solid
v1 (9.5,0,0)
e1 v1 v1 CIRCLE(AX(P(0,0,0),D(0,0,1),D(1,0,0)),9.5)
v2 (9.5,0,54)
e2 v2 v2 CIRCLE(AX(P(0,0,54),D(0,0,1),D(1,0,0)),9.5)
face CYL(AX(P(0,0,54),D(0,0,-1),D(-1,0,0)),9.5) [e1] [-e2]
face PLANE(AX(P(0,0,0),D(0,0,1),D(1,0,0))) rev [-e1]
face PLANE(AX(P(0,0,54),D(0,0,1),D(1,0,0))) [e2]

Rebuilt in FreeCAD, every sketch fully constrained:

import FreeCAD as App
import Part
import Sketcher

doc = App.newDocument("Part")
params = doc.addObject("Spreadsheet::Sheet", "Params")
for row, (alias, value) in enumerate([
    ("sketch1_diameter", "19 mm"),
    ("pad1_length", "54 mm"),
], start=1):
    params.set(f"A{row}", alias)
    params.set(f"B{row}", "=" + value)
    params.setAlias(f"B{row}", alias)

body = doc.addObject("PartDesign::Body", "Body")

# Sketch on XY plane
sketch1 = body.newObject("Sketcher::SketchObject", "Sketch")
sketch1.AttachmentSupport = (doc.getObject("XY_Plane"), [""])
sketch1.MapMode = "FlatFace"
sketch1.addGeometry(Part.Circle(App.Vector(0, 0, 0), App.Vector(0, 0, 1), 10), False)
sketch1.addConstraint(Sketcher.Constraint("Coincident", 0, 3, -1, 1))
sketch1.addConstraint(Sketcher.Constraint("Diameter", 0, 19.0))
sketch1.setExpression("Constraints[1]", "Params.sketch1_diameter")
pad1 = body.newObject("PartDesign::Pad", "Pad")
pad1.Profile = sketch1
pad1.setExpression("Length", "Params.pad1_length")

doc.recompute()
